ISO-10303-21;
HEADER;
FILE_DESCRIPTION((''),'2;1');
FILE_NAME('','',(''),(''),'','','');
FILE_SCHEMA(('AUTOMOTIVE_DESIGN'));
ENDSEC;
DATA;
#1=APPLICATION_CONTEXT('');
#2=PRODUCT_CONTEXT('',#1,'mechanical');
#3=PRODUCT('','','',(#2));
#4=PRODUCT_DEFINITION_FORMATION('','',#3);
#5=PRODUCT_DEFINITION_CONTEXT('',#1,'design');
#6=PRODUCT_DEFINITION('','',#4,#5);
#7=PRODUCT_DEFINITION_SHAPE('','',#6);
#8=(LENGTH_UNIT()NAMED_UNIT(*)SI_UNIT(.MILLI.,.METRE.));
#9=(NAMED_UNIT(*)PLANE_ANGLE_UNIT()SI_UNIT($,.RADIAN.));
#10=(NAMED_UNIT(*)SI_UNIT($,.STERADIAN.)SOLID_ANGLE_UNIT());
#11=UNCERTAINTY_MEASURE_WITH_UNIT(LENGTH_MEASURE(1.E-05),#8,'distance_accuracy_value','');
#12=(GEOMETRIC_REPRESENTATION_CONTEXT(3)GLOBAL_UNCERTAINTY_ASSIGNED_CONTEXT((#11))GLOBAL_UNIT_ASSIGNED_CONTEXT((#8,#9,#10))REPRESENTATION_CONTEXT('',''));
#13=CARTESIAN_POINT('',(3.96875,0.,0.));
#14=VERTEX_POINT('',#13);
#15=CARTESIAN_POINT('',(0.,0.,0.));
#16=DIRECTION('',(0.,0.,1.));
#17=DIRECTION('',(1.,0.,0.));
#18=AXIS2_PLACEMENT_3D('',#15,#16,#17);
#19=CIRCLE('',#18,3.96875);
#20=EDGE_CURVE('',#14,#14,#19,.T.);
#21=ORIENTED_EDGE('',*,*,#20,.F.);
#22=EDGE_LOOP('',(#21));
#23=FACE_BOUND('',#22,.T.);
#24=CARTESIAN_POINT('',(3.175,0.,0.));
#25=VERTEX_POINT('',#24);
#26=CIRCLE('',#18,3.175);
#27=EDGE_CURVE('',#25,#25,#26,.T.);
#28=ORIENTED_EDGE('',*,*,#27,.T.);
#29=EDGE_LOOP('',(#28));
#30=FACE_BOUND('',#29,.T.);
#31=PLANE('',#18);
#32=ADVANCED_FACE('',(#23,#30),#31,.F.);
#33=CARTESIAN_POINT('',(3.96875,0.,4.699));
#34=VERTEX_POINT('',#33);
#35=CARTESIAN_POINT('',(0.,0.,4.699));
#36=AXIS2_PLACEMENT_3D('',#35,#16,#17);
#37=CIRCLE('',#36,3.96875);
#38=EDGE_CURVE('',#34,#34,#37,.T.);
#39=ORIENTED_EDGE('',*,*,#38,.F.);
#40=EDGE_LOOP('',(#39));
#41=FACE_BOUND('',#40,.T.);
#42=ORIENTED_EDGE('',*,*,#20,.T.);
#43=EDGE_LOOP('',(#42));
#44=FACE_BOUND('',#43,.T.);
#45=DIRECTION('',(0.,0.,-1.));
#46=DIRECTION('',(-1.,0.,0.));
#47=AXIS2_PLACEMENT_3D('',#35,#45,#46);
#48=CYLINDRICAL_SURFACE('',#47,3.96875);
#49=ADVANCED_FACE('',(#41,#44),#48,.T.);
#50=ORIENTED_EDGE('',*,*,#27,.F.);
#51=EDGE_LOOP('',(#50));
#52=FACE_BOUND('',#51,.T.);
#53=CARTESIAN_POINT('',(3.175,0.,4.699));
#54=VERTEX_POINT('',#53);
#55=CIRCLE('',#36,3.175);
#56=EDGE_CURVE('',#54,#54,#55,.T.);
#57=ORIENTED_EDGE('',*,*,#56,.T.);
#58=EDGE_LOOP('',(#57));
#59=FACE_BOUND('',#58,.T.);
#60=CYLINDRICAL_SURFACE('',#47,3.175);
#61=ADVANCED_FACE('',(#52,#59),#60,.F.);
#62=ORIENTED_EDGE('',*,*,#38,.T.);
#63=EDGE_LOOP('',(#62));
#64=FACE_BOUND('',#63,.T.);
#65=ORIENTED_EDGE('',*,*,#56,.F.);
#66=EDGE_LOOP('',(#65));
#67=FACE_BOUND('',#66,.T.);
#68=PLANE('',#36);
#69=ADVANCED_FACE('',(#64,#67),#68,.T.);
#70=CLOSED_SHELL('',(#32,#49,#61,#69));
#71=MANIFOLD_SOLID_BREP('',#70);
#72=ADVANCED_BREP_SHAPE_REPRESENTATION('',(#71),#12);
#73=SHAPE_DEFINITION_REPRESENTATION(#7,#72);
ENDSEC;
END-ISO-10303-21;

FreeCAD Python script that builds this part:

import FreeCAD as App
import Part
import Sketcher

V = App.Vector
Q = App.Units.Quantity

doc = App.newDocument("Part")
body = doc.addObject("PartDesign::Body", "Body")

sketch1 = body.newObject("Sketcher::SketchObject", "Sketch")
sketch1.AttachmentSupport = (doc.getObject("XY_Plane"), [""])
sketch1.MapMode = "FlatFace"
sketch1.addGeometry(Part.Circle(V(0, 0, 0), V(0, 0, 1), 4), False)
sketch1.addGeometry(Part.Circle(V(0, 0, 0), V(0, 0, 1), 3.2), False)
sketch1.addConstraint(Sketcher.Constraint("Coincident", 0, 3, -1, 1))
sketch1.addConstraint(Sketcher.Constraint("Coincident", 1, 3, -1, 1))
sketch1.addConstraint(Sketcher.Constraint("Diameter", 1, Q("0.25 in")))
sketch1.addConstraint(Sketcher.Constraint("Diameter", 0, Q("0.3125 in")))
pad1 = body.newObject("PartDesign::Pad", "Pad")
pad1.Profile = sketch1
pad1.Length = Q("0.185 in")

doc.recompute()
